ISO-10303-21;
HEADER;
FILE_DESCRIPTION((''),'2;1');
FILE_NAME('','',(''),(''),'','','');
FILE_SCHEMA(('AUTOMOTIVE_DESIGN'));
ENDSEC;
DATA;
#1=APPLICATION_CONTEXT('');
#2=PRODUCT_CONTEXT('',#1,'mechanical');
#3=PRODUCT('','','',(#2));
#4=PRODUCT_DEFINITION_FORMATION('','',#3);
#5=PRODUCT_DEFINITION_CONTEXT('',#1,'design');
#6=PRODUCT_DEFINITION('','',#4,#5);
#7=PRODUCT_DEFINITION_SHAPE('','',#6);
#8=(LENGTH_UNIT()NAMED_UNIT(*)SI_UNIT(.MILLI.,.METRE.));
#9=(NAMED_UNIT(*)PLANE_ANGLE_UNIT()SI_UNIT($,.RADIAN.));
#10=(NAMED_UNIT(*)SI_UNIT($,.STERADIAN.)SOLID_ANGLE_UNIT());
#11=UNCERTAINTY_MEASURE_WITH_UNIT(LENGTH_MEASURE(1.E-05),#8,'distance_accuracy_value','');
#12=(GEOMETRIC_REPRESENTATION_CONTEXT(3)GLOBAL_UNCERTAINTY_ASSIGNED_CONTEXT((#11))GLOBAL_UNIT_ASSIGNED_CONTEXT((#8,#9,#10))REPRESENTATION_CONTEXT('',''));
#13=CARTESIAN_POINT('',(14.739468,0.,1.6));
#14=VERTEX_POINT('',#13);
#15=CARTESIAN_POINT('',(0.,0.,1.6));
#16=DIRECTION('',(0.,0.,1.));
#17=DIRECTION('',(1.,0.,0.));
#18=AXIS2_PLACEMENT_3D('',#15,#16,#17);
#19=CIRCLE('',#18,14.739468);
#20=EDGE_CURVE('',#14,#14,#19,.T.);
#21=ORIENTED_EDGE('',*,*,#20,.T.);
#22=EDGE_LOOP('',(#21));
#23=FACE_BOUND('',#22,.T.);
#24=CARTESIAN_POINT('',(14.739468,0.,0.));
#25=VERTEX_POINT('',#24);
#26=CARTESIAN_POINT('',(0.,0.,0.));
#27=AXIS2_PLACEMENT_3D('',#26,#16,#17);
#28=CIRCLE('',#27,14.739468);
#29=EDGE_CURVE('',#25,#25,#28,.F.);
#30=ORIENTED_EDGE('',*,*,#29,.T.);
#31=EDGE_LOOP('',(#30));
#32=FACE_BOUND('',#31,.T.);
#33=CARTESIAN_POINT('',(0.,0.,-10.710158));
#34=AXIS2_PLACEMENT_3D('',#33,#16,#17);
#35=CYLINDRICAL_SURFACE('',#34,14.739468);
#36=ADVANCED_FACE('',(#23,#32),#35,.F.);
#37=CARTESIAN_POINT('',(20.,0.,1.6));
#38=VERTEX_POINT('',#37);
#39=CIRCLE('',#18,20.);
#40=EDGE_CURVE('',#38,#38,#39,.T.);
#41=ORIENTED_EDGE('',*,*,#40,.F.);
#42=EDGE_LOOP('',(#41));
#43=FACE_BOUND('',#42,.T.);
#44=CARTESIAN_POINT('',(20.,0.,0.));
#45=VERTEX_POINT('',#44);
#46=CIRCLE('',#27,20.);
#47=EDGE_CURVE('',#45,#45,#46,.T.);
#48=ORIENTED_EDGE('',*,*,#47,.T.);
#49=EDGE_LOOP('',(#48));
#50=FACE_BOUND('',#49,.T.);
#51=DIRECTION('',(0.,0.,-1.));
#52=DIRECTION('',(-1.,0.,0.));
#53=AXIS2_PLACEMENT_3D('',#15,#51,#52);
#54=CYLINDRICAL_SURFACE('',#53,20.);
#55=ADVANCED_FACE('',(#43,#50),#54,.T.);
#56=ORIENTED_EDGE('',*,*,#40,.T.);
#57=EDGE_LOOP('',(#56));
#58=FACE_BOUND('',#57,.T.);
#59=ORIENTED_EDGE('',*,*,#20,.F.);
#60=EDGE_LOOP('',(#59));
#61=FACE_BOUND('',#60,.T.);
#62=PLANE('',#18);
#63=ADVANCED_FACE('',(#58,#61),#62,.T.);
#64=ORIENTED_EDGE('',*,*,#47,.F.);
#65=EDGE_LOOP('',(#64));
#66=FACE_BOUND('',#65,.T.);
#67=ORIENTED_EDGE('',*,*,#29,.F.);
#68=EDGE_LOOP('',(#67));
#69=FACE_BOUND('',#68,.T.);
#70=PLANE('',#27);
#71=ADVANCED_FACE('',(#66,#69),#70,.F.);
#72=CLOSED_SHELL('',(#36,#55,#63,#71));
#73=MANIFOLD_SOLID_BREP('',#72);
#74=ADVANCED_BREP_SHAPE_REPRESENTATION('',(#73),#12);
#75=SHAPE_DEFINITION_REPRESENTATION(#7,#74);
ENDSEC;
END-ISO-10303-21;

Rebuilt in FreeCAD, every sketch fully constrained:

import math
import FreeCAD as App
import Part
import Sketcher
from FreeCAD import Vector

doc = App.newDocument("Part")
params = doc.addObject("Spreadsheet::Sheet", "Params")
for row, (alias, value) in enumerate([
    ("sketch1_diameter", "40 mm"),
    ("sketch1_diameter2", "32.77 mm"),
    ("pad1_length", "1.6 mm"),
    ("sketch2_radius", "1 mm"),
    ("pad2_length", "1.6 mm"),
], start=1):
    params.set(f"A{row}", alias)
    params.set(f"B{row}", "=" + value)
    params.setAlias(f"B{row}", alias)

body = doc.addObject("PartDesign::Body", "Body")

# Sketch on XY plane
sketch1 = body.newObject("Sketcher::SketchObject", "Sketch")
sketch1.AttachmentSupport = (doc.getObject("XY_Plane"), [""])
sketch1.MapMode = "FlatFace"
sketch1.addGeometry(Part.Circle(Vector(0, 0, 0), Vector(0, 0, 1), 20), False)
sketch1.addGeometry(Part.Circle(Vector(0, 0, 0), Vector(0, 0, 1), 16), False)
sketch1.addConstraint(Sketcher.Constraint("Coincident", 0, 3, -1, 1))
sketch1.addConstraint(Sketcher.Constraint("Coincident", 1, 3, -1, 1))
sketch1.addConstraint(Sketcher.Constraint("Diameter", 0, 40.0))
sketch1.addConstraint(Sketcher.Constraint("Diameter", 1, 32.77))
sketch1.setExpression("Constraints[2]", "Params.sketch1_diameter")
sketch1.setExpression("Constraints[3]", "Params.sketch1_diameter2")
pad1 = body.newObject("PartDesign::Pad", "Pad")
pad1.Profile = sketch1
pad1.setExpression("Length", "Params.pad1_length")

# Sketch on XY plane
sketch2 = body.newObject("Sketcher::SketchObject", "Sketch001")
sketch2.AttachmentSupport = (doc.getObject("XY_Plane"), [""])
sketch2.MapMode = "FlatFace"
sketch2.AttachmentOffset = App.Placement(Vector(0, 0, 1.6), App.Rotation())
sketch2.addGeometry(Part.LineSegment(Vector(1.4, 14.83, 0), Vector(1.63, 15.5, 0)), False)
sketch2.addGeometry(Part.ArcOfCircle(Part.Circle(Vector(2.57, 15.17, 0), Vector(0, 0, 1), 1), math.radians(80), math.radians(161)), False)
sketch2.addGeometry(Part.ArcOfCircle(Part.Circle(Vector(0, 0, 0), Vector(0, 0, 1), 16.39), math.radians(80), math.radians(118)), False)
sketch2.addGeometry(Part.ArcOfCircle(Part.Circle(Vector(-7.14, 13.63, 0), Vector(0, 0, 1), 1), math.radians(37), math.radians(118)), False)
sketch2.addGeometry(Part.LineSegment(Vector(-6.34, 14.24, 0), Vector(-5.91, 13.68, 0)), False)
sketch2.addGeometry(Part.LineSegment(Vector(-5.91, 13.68, 0), Vector(-5.68, 13.6, 0)), False)
sketch2.addGeometry(Part.ArcOfCircle(Part.Circle(Vector(0, 0, 0), Vector(0, 0, 1), 14.74), math.radians(85), math.radians(113)), False)
sketch2.addGeometry(Part.LineSegment(Vector(1.2, 14.69, 0), Vector(1.4, 14.83, 0)), False)
sketch2.addConstraint(Sketcher.Constraint("Tangent", 0, 2, 1, 2))
sketch2.addConstraint(Sketcher.Constraint("Tangent", 1, 1, 2, 1))
sketch2.addConstraint(Sketcher.Constraint("Tangent", 2, 2, 3, 2))
sketch2.addConstraint(Sketcher.Constraint("Tangent", 3, 1, 4, 1))
sketch2.addConstraint(Sketcher.Constraint("Coincident", 4, 2, 5, 1))
sketch2.addConstraint(Sketcher.Constraint("Coincident", 5, 2, 6, 2))
sketch2.addConstraint(Sketcher.Constraint("Coincident", 6, 1, 7, 1))
sketch2.addConstraint(Sketcher.Constraint("Coincident", 7, 2, 0, 1))
sketch2.addConstraint(Sketcher.Constraint("Coincident", 2, 3, -1, 1))
sketch2.addConstraint(Sketcher.Constraint("Coincident", 6, 3, -1, 1))
sketch2.addConstraint(Sketcher.Constraint("Equal", 1, 3))
sketch2.addConstraint(Sketcher.Constraint("Equal", 0, 4))
sketch2.addConstraint(Sketcher.Constraint("Equal", 5, 7))
sketch2.addConstraint(Sketcher.Constraint("Radius", 1, 1.0))
sketch2.addConstraint(Sketcher.Constraint("Radius", 2, 16.389109))
sketch2.addConstraint(Sketcher.Constraint("Radius", 6, 14.739468))
sketch2.addConstraint(Sketcher.Constraint("DistanceY", -1, 1, 5, 2, 13.6025))
sketch2.addConstraint(Sketcher.Constraint("DistanceY", -1, 1, 7, 2, 14.834398))
sketch2.addConstraint(Sketcher.Constraint("DistanceX", 2, 2, 0, 2, 9.229101))
sketch2.addConstraint(Sketcher.Constraint("DistanceY", 2, 2, 1, 1, 1.6379))
sketch2.addConstraint(Sketcher.Constraint("DistanceX", 3, 3, -1, 1, 7.13642))
sketch2.addConstraint(Sketcher.Constraint("DistanceX", 3, 1, -1, 1, 6.338859))
sketch2.setExpression("Constraints[13]", "Params.sketch2_radius")
pad2 = body.newObject("PartDesign::Pad", "Pad001")
pad2.Profile = sketch2
pad2.setExpression("Length", "Params.pad2_length")
pad2.Reversed = True
doc.recompute()

polarpattern = body.newObject("PartDesign::PolarPattern", "PolarPattern")
polarpattern.Originals = [pad2]
polarpattern.Axis = (doc.getObject("Z_Axis"), [""])
polarpattern.Angle = 360
polarpattern.Occurrences = 20
body.Tip = polarpattern

doc.recompute()
